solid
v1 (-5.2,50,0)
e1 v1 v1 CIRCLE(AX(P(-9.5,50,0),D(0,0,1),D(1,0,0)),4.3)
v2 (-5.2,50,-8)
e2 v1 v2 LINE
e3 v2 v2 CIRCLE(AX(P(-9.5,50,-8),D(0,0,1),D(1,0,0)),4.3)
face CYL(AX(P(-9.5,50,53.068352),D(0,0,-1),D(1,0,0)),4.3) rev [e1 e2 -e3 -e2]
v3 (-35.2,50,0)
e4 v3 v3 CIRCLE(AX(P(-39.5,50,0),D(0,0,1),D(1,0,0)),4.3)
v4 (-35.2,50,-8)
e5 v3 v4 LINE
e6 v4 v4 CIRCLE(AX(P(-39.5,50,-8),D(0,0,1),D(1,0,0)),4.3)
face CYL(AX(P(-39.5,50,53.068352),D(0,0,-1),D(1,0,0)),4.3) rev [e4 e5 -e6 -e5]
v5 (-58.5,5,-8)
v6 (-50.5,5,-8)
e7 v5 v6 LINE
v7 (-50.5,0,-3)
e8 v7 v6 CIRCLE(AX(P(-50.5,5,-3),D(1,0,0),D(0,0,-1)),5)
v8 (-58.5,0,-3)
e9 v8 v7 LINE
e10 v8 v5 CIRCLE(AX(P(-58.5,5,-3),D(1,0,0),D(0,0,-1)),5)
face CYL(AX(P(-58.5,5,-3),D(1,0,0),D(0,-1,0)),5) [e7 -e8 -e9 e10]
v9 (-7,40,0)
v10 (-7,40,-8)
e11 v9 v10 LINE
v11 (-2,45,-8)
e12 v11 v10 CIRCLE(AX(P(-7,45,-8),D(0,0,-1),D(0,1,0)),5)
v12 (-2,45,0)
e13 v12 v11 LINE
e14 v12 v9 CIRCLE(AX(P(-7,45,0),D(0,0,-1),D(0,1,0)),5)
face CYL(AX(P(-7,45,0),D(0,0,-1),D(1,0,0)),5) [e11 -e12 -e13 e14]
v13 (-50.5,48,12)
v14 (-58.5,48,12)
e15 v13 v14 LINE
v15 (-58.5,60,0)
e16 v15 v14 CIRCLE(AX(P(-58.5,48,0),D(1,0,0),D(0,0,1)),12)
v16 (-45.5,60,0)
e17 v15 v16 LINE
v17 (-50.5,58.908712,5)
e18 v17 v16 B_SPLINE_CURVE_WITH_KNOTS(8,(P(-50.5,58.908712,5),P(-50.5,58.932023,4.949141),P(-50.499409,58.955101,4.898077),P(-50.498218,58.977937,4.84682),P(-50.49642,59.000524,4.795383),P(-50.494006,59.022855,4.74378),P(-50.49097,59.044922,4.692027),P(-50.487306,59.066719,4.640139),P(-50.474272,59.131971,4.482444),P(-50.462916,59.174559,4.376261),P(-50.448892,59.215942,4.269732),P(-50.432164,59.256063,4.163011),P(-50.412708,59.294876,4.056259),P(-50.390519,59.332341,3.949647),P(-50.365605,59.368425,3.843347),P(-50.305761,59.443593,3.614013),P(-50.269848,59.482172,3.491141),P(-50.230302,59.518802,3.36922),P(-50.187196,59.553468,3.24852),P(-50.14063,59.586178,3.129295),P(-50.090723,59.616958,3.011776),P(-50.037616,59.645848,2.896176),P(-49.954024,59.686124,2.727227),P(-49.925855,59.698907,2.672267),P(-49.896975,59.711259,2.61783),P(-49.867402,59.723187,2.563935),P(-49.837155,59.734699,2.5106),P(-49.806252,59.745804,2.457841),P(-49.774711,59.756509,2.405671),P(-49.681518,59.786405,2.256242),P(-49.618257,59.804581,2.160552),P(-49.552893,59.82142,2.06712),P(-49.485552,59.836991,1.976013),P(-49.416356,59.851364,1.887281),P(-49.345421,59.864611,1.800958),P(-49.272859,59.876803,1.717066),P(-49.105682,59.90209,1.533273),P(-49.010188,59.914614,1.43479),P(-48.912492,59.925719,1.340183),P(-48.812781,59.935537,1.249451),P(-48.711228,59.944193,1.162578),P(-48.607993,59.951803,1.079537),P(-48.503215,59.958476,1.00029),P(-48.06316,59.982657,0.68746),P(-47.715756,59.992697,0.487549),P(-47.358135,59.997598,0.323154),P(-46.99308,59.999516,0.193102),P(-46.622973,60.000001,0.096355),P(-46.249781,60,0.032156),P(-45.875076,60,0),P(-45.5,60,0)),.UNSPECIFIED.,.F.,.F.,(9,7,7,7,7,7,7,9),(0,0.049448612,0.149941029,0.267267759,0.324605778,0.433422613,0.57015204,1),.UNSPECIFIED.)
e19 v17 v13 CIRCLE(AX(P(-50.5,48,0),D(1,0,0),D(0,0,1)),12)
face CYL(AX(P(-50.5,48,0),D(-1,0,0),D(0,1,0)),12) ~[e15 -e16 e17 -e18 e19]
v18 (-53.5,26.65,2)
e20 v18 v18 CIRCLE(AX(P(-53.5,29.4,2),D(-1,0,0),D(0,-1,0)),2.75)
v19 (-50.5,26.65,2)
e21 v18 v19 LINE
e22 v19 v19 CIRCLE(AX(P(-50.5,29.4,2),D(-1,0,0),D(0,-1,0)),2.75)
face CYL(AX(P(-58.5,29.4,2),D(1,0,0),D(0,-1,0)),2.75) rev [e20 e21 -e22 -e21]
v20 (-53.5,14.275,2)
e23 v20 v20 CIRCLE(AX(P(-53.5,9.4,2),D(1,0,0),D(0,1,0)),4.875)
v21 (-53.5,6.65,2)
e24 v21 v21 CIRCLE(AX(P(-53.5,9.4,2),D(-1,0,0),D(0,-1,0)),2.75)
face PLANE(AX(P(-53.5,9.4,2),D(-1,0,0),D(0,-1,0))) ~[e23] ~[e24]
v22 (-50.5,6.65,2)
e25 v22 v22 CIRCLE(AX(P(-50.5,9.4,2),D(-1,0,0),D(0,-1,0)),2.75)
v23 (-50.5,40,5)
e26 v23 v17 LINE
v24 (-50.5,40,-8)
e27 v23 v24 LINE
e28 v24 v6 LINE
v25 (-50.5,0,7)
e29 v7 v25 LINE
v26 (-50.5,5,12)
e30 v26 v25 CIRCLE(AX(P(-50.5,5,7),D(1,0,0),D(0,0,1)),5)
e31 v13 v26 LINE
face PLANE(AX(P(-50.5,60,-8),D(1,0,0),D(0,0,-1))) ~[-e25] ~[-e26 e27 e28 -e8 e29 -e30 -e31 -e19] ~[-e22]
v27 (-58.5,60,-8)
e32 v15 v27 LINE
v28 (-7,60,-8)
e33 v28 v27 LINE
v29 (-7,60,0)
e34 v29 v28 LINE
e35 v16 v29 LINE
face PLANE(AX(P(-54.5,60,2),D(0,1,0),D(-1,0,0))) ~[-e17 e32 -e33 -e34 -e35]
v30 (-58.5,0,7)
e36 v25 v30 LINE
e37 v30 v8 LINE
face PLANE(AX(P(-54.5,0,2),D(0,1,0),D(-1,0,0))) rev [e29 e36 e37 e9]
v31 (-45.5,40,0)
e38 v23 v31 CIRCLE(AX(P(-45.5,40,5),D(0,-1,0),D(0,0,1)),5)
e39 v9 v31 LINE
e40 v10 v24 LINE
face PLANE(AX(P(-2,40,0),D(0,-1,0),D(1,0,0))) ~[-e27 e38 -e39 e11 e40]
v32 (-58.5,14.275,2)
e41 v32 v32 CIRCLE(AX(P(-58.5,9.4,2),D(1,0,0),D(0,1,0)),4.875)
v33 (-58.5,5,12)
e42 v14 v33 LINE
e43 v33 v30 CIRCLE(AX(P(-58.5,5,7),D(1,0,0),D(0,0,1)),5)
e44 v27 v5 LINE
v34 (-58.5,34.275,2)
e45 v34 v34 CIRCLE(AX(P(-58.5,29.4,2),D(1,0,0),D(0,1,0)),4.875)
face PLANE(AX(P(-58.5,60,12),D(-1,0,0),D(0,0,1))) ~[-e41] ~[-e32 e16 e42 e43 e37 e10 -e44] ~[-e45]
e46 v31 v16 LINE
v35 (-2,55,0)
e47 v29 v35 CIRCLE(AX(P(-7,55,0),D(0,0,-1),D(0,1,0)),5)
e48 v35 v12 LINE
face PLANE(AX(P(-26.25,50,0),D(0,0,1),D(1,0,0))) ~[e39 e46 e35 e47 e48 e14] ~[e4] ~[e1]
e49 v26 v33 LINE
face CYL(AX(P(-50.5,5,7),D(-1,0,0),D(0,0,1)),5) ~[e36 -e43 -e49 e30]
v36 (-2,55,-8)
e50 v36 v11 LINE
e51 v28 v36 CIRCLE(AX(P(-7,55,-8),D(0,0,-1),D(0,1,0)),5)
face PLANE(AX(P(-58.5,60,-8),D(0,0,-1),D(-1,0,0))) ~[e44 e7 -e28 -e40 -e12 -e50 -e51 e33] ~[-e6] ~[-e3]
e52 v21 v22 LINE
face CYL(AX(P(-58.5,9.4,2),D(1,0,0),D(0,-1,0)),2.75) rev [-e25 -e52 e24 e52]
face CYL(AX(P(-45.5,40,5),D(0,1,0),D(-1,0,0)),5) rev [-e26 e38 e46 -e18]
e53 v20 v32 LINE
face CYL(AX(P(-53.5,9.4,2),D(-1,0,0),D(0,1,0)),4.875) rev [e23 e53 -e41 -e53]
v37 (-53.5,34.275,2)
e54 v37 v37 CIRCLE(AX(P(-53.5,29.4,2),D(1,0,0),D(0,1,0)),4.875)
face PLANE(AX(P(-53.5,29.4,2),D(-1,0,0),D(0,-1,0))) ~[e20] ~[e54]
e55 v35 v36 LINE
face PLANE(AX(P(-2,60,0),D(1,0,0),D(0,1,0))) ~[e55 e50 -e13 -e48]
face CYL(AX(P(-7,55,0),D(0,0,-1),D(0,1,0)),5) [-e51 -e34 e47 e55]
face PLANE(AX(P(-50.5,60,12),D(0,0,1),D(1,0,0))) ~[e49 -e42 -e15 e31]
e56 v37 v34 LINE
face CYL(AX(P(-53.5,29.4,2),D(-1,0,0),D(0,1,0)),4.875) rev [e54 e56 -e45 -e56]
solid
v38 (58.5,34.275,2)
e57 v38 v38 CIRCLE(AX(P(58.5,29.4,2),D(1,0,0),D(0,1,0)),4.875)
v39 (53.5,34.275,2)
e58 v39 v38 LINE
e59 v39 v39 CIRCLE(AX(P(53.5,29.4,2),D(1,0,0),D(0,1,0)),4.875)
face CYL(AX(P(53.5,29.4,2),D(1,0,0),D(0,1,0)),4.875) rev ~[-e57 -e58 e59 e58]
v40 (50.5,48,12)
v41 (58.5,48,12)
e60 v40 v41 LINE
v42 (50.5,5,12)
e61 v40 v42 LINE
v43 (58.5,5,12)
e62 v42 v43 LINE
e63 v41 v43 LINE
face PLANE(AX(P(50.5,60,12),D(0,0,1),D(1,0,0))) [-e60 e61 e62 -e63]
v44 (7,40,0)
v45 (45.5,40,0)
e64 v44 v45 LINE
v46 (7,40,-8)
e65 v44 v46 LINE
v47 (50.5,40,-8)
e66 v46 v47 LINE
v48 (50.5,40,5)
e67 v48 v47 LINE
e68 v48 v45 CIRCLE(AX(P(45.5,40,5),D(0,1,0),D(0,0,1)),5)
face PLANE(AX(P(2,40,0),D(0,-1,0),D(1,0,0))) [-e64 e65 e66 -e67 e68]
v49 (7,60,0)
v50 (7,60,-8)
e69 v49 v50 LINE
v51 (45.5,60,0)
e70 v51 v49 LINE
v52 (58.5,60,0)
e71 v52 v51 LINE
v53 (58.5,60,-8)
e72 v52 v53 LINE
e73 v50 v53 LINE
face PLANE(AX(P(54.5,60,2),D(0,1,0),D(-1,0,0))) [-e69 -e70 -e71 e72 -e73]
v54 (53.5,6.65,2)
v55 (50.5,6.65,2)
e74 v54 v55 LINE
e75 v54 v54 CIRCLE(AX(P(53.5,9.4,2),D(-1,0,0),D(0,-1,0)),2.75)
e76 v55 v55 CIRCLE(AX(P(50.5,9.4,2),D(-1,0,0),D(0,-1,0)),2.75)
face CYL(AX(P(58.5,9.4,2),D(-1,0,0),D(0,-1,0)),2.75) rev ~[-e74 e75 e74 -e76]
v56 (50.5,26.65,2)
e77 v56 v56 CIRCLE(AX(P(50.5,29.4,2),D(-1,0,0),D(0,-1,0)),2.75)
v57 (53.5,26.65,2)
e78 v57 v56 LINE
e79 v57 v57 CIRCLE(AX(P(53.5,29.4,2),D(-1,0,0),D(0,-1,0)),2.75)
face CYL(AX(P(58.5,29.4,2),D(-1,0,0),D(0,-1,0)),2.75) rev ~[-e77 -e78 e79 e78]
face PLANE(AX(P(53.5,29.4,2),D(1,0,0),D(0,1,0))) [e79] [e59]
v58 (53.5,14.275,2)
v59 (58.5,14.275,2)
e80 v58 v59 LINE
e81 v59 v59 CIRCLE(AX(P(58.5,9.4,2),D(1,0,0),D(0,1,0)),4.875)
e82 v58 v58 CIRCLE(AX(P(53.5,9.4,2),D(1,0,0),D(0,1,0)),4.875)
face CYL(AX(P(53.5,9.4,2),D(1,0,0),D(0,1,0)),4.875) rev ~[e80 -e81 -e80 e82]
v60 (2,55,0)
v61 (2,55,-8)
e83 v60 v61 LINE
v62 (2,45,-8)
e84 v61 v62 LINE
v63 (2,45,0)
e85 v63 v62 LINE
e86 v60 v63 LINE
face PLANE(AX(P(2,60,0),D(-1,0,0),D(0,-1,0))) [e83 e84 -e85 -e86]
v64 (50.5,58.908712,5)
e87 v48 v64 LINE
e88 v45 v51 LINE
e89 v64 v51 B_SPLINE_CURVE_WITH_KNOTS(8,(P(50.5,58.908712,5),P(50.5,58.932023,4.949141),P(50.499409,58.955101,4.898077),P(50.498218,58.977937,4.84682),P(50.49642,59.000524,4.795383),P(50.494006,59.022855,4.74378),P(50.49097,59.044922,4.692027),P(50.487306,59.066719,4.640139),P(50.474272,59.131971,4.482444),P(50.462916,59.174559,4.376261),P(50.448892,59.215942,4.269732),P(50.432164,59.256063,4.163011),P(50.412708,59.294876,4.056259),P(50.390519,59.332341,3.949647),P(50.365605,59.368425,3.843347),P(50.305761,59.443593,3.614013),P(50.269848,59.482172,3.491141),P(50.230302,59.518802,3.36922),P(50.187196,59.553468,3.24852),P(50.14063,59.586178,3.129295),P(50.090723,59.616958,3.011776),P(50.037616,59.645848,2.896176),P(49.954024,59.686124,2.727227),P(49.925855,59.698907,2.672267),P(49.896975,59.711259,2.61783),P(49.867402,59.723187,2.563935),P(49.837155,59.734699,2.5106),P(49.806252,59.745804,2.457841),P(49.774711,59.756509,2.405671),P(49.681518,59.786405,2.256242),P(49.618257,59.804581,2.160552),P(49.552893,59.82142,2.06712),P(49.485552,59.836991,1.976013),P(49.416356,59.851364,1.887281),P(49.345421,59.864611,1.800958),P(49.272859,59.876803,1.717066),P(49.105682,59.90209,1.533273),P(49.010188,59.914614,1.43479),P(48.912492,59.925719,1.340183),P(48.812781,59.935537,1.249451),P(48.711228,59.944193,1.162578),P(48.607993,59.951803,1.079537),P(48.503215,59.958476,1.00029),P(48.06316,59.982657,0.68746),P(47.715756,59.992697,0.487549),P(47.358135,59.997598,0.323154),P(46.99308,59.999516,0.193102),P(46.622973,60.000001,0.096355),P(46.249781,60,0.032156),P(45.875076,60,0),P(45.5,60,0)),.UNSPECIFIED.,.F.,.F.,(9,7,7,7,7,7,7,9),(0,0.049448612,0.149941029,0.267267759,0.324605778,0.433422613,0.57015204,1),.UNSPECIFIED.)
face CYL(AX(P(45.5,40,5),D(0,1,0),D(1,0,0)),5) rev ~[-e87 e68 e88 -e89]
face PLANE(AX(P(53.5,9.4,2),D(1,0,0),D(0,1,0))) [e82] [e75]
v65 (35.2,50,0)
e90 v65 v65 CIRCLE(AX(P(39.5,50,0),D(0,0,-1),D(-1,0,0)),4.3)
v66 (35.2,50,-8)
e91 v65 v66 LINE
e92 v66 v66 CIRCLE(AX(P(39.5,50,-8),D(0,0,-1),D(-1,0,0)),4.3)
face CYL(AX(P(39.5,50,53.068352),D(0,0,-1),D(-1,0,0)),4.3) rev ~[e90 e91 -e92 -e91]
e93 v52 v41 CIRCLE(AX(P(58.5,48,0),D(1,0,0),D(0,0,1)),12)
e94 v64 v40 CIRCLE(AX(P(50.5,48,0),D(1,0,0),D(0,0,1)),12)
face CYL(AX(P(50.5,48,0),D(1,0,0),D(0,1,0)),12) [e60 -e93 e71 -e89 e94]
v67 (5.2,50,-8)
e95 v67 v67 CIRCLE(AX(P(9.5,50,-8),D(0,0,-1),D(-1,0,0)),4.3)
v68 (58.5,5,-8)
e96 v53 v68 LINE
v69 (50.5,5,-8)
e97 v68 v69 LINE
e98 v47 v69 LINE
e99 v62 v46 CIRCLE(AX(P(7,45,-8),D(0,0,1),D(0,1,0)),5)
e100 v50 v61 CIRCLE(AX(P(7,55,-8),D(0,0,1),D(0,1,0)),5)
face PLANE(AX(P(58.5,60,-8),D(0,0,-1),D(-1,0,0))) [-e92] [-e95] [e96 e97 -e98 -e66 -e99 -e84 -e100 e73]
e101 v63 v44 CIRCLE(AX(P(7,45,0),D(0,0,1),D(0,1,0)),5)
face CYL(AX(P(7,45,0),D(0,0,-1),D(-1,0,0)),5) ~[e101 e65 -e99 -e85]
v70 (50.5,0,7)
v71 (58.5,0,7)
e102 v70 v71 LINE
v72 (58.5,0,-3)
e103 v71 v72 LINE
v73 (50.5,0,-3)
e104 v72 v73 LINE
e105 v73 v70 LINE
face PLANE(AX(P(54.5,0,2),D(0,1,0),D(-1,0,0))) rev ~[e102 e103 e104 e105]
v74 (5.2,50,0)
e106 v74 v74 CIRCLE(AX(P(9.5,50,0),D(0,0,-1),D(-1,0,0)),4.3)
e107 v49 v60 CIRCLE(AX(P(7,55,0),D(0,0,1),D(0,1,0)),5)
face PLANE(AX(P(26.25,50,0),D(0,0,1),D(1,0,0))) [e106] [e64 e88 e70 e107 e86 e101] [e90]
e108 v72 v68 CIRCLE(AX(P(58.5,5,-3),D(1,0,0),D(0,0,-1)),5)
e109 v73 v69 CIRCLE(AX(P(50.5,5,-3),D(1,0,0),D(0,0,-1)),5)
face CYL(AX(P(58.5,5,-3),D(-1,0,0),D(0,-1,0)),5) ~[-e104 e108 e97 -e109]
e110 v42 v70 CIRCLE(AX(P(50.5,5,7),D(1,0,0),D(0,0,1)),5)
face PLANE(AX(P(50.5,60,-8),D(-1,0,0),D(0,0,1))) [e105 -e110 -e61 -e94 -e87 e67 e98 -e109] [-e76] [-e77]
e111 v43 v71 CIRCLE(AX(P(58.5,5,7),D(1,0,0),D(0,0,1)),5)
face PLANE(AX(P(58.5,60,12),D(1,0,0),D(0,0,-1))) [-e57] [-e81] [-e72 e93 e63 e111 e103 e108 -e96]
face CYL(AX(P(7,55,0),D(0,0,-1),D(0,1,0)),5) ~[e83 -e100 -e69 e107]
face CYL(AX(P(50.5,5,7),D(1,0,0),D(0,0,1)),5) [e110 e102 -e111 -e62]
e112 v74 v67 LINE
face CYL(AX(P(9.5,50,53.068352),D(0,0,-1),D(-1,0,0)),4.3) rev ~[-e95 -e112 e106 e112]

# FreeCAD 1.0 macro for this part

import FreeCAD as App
import Part
import Sketcher
Q = App.Units.Quantity


def edges_at(feature, points):
    """Names of the edges that pass closest to the given points."""
    edges = feature.Shape.Edges
    near = lambda p: min(range(len(edges)), key=lambda i: edges[i].distToShape(Part.Vertex(*p))[0])
    return sorted({f"Edge{near(p) + 1}" for p in points})

doc = App.newDocument("Part")
body = doc.addObject("PartDesign::Body", "Body")

# Sketch on XY plane
sketch1 = body.newObject("Sketcher::SketchObject", "Sketch")
sketch1.AttachmentSupport = (doc.getObject("XY_Plane"), [""])
sketch1.MapMode = "FlatFace"
sketch1.addGeometry(Part.LineSegment(App.Vector(50.5, 40, 0), App.Vector(50.5, 60, 0)), False)
sketch1.addGeometry(Part.LineSegment(App.Vector(50.5, 60, 0), App.Vector(2, 60, 0)), False)
sketch1.addGeometry(Part.LineSegment(App.Vector(2, 60, 0), App.Vector(2, 40, 0)), False)
sketch1.addGeometry(Part.LineSegment(App.Vector(2, 40, 0), App.Vector(50.5, 40, 0)), False)
sketch1.addConstraint(Sketcher.Constraint("Coincident", 0, 2, 1, 1))
sketch1.addConstraint(Sketcher.Constraint("Coincident", 1, 2, 2, 1))
sketch1.addConstraint(Sketcher.Constraint("Coincident", 2, 2, 3, 1))
sketch1.addConstraint(Sketcher.Constraint("Coincident", 3, 2, 0, 1))
sketch1.addConstraint(Sketcher.Constraint("Vertical", 0))
sketch1.addConstraint(Sketcher.Constraint("Horizontal", 1))
sketch1.addConstraint(Sketcher.Constraint("Vertical", 2))
sketch1.addConstraint(Sketcher.Constraint("Horizontal", 3))
sketch1.addConstraint(Sketcher.Constraint("DistanceY", 0, 1, 0, 2, Q("20 mm")))
sketch1.addConstraint(Sketcher.Constraint("DistanceX", 1, 2, 1, 1, Q("48.5 mm")))
sketch1.addConstraint(Sketcher.Constraint("DistanceY", -1, 1, 0, 2, Q("60 mm")))
sketch1.addConstraint(Sketcher.Constraint("DistanceX", -1, 1, 1, 2, Q("2 mm")))
pad1 = body.newObject("PartDesign::Pad", "Pad")
pad1.Profile = sketch1
pad1.Length = 8
pad1.Reversed = True

# Sketch on XY plane
sketch2 = body.newObject("Sketcher::SketchObject", "Sketch001")
sketch2.AttachmentSupport = (doc.getObject("XY_Plane"), [""])
sketch2.MapMode = "FlatFace"
sketch2.addGeometry(Part.Circle(App.Vector(9.5, 50, 0), App.Vector(0, 0, 1), 4.3), False)
sketch2.addGeometry(Part.Circle(App.Vector(39.5, 50, 0), App.Vector(0, 0, 1), 4.3), False)
sketch2.addConstraint(Sketcher.Constraint("Equal", 0, 1))
sketch2.addConstraint(Sketcher.Constraint("Horizontal", 0, 3, 1, 3))
sketch2.addConstraint(Sketcher.Constraint("Diameter", 0, Q("8.6 mm")))
sketch2.addConstraint(Sketcher.Constraint("DistanceY", -1, 1, 0, 3, Q("50 mm")))
sketch2.addConstraint(Sketcher.Constraint("DistanceX", 0, 3, 1, 3, Q("30 mm")))
sketch2.addConstraint(Sketcher.Constraint("DistanceX", -1, 1, 0, 3, Q("9.5 mm")))
doc.recompute()
hole = body.newObject("PartDesign::Hole", "Hole")
hole.Profile = sketch2
hole.ThreadType = "None"
hole.Diameter = 8.6
hole.DepthType = "ThroughAll"

# Sketch on XZ plane
sketch3 = body.newObject("Sketcher::SketchObject", "Sketch002")
sketch3.AttachmentSupport = (doc.getObject("XZ_Plane"), [""])
sketch3.MapMode = "FlatFace"
sketch3.AttachmentOffset = App.Placement(App.Vector(0, 0, -60), App.Rotation())
sketch3.addGeometry(Part.LineSegment(App.Vector(58.5, -8, 0), App.Vector(50.5, -8, 0)), False)
sketch3.addGeometry(Part.LineSegment(App.Vector(50.5, -8, 0), App.Vector(50.5, 12, 0)), False)
sketch3.addGeometry(Part.LineSegment(App.Vector(50.5, 12, 0), App.Vector(58.5, 12, 0)), False)
sketch3.addGeometry(Part.LineSegment(App.Vector(58.5, 12, 0), App.Vector(58.5, -8, 0)), False)
sketch3.addConstraint(Sketcher.Constraint("Coincident", 0, 2, 1, 1))
sketch3.addConstraint(Sketcher.Constraint("Coincident", 1, 2, 2, 1))
sketch3.addConstraint(Sketcher.Constraint("Coincident", 2, 2, 3, 1))
sketch3.addConstraint(Sketcher.Constraint("Coincident", 3, 2, 0, 1))
sketch3.addConstraint(Sketcher.Constraint("Horizontal", 0))
sketch3.addConstraint(Sketcher.Constraint("Vertical", 1))
sketch3.addConstraint(Sketcher.Constraint("Horizontal", 2))
sketch3.addConstraint(Sketcher.Constraint("Vertical", 3))
sketch3.addConstraint(Sketcher.Constraint("DistanceX", 0, 2, 0, 1, Q("8 mm")))
sketch3.addConstraint(Sketcher.Constraint("DistanceY", 1, 1, 1, 2, Q("20 mm")))
sketch3.addConstraint(Sketcher.Constraint("DistanceY", 0, 2, -1, 1, Q("8 mm")))
sketch3.addConstraint(Sketcher.Constraint("DistanceX", -1, 1, 0, 2, Q("50.5 mm")))
pad2 = body.newObject("PartDesign::Pad", "Pad001")
pad2.Profile = sketch3
pad2.Length = 60

# Sketch on YZ plane
sketch4 = body.newObject("Sketcher::SketchObject", "Sketch003")
sketch4.AttachmentSupport = (doc.getObject("YZ_Plane"), [""])
sketch4.MapMode = "FlatFace"
sketch4.AttachmentOffset = App.Placement(App.Vector(0, 0, 58.5), App.Rotation())
sketch4.addGeometry(Part.Circle(App.Vector(9.4, 2, 0), App.Vector(0, 0, 1), 2.75), False)
sketch4.addGeometry(Part.Circle(App.Vector(29.4, 2, 0), App.Vector(0, 0, 1), 2.75), False)
sketch4.addConstraint(Sketcher.Constraint("Equal", 0, 1))
sketch4.addConstraint(Sketcher.Constraint("Horizontal", 0, 3, 1, 3))
sketch4.addConstraint(Sketcher.Constraint("Diameter", 0, Q("5.5 mm")))
sketch4.addConstraint(Sketcher.Constraint("DistanceY", -1, 1, 0, 3, Q("2 mm")))
sketch4.addConstraint(Sketcher.Constraint("DistanceX", 0, 3, 1, 3, Q("20 mm")))
sketch4.addConstraint(Sketcher.Constraint("DistanceX", -1, 1, 0, 3, Q("9.4 mm")))
doc.recompute()
hole2 = body.newObject("PartDesign::Hole", "Hole001")
hole2.Profile = sketch4
hole2.ThreadType = "None"
hole2.Diameter = 5.5
hole2.DepthType = "Dimension"
hole2.Depth = 30
hole2.DrillPoint = "Angled"
hole2.DrillPointAngle = 118
hole2.HoleCutType = "Counterbore"
hole2.HoleCutDiameter = 9.75
hole2.HoleCutDepth = 5
doc.recompute()

fillet = body.newObject("PartDesign::Fillet", "Fillet")
fillet.Base = (hole2, edges_at(hole2, [(54.5, 60, 12)]))
fillet.Radius = 12
doc.recompute()

fillet2 = body.newObject("PartDesign::Fillet", "Fillet001")
fillet2.Base = (fillet, edges_at(fillet, [
    (54.5, 0, 12),
    (54.5, 0, -8),
    (2, 40, -4),
    (2, 60, -4),
    (50.5, 50, 0),
]))
fillet2.Radius = 5
body2 = doc.addObject("PartDesign::Body", "Body001")
doc.recompute()

mirroring = doc.addObject("Part::Mirroring", "Mirroring")
mirroring.Source = body
mirroring.Base = App.Vector(0, 0, 0)
mirroring.Normal = App.Vector(1, 0, 0)
body2.BaseFeature = mirroring
doc.recompute()
mirroring.Visibility = False

doc.recompute()
